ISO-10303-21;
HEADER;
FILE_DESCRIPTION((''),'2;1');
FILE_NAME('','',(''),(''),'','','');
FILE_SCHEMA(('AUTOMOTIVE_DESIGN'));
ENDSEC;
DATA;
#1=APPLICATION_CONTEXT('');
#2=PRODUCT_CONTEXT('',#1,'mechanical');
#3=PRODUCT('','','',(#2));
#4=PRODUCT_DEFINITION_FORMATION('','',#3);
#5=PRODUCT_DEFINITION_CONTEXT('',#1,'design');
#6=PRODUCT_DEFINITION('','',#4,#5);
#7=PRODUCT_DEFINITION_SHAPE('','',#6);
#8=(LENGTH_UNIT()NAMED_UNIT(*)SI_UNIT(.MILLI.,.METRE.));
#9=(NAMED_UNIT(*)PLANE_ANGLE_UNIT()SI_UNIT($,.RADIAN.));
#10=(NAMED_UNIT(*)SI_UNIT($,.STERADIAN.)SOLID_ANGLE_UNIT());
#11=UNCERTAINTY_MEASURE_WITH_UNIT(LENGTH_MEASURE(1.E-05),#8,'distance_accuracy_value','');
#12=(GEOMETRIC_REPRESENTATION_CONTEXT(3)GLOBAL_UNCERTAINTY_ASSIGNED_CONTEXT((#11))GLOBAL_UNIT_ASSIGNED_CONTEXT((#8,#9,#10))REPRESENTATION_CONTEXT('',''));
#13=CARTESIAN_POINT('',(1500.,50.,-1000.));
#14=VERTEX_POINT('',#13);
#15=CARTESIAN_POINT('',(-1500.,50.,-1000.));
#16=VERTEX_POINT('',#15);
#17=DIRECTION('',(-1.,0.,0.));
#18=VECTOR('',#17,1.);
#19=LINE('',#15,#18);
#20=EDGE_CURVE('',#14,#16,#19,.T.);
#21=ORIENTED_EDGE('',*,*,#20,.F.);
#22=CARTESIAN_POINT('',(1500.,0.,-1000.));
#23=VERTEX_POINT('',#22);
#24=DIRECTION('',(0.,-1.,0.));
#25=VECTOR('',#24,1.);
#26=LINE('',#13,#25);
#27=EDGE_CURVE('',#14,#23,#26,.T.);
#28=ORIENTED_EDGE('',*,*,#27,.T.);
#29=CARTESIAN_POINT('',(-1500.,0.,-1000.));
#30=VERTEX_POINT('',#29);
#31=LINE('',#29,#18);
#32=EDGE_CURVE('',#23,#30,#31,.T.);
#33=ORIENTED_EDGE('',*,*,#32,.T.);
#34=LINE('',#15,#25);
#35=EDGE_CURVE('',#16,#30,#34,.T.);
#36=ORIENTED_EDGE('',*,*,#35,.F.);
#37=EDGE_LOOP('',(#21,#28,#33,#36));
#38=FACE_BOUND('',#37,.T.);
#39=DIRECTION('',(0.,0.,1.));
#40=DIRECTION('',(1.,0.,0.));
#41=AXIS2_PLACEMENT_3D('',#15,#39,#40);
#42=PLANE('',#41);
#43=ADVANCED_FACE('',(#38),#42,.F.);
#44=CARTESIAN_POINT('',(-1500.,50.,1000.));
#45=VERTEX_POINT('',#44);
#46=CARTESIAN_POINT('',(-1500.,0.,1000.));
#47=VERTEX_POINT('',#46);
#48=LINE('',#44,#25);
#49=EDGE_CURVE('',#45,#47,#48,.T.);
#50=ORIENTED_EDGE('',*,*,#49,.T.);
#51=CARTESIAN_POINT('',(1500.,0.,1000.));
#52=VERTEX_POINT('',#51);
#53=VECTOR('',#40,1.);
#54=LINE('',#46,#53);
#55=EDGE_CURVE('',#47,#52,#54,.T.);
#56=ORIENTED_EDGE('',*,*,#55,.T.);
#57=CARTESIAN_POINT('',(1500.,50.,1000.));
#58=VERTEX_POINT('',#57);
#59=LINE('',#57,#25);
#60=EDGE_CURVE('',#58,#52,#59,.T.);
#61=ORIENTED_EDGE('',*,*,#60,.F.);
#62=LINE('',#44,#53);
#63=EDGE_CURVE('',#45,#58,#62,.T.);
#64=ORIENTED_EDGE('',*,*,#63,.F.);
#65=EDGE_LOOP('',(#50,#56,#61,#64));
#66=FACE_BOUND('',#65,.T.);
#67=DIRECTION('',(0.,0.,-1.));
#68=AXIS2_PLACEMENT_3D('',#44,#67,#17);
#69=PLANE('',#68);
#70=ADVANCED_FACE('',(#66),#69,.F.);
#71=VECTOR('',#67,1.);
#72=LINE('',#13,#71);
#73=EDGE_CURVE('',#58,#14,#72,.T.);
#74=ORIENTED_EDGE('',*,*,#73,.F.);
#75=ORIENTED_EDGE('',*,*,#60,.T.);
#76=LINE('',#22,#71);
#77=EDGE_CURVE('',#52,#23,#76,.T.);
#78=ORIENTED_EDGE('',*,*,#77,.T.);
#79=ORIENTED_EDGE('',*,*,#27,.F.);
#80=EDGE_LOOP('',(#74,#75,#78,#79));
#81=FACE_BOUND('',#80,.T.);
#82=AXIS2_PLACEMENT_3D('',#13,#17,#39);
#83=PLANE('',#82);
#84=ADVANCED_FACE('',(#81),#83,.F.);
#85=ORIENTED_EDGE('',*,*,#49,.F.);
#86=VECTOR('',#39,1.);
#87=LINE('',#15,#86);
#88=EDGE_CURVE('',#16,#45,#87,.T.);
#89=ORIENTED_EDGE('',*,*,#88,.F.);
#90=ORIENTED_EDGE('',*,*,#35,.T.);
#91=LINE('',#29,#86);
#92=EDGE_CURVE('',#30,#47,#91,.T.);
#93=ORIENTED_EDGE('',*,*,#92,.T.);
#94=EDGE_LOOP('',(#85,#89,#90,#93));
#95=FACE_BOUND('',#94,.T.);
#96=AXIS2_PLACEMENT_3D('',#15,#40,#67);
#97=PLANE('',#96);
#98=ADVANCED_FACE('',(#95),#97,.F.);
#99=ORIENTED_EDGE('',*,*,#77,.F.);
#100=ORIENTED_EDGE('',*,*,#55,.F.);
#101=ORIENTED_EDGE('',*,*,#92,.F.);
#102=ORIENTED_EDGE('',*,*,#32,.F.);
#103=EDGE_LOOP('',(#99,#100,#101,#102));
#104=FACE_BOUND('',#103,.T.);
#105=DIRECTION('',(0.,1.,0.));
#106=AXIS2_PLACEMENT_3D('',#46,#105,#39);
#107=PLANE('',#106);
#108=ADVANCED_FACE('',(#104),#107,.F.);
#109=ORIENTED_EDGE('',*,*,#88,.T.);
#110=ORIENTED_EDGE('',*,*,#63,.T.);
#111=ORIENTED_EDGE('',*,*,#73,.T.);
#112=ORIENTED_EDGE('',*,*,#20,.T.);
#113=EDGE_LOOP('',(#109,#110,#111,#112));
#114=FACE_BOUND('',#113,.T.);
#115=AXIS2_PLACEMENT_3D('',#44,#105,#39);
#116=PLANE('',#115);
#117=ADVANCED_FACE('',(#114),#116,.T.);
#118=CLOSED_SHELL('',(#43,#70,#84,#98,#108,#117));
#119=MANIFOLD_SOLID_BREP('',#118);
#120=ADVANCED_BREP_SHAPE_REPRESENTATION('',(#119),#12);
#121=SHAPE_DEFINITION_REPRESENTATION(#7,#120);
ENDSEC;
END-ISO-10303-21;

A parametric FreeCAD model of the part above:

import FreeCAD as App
import Part
import Sketcher
from FreeCAD import Vector

doc = App.newDocument("Part")
params = doc.addObject("Spreadsheet::Sheet", "Params")
for row, (alias, value) in enumerate([
    ("sketch1_width", "3000 mm"),
    ("sketch1_height", "2000 mm"),
    ("pad1_length", "50 mm"),
], start=1):
    params.set(f"A{row}", alias)
    params.set(f"B{row}", "=" + value)
    params.setAlias(f"B{row}", alias)

body = doc.addObject("PartDesign::Body", "Body")

sketch1 = doc.addObject("Sketcher::SketchObject", "Sketch")
body.addObject(sketch1)
sketch1.AttachmentSupport = (doc.XZ_Plane, [""])
sketch1.MapMode = "FlatFace"
sketch1.addGeometry(Part.LineSegment(Vector(-1500, -1000, 0), Vector(-1500, 1000, 0)), False)
sketch1.addGeometry(Part.LineSegment(Vector(-1500, 1000, 0), Vector(1500, 1000, 0)), False)
sketch1.addGeometry(Part.LineSegment(Vector(1500, 1000, 0), Vector(1500, -1000, 0)), False)
sketch1.addGeometry(Part.LineSegment(Vector(1500, -1000, 0), Vector(-1500, -1000, 0)), False)
sketch1.addConstraint(Sketcher.Constraint("Coincident", 0, 2, 1, 1))
sketch1.addConstraint(Sketcher.Constraint("Coincident", 1, 2, 2, 1))
sketch1.addConstraint(Sketcher.Constraint("Coincident", 2, 2, 3, 1))
sketch1.addConstraint(Sketcher.Constraint("Coincident", 3, 2, 0, 1))
sketch1.addConstraint(Sketcher.Constraint("Vertical", 0))
sketch1.addConstraint(Sketcher.Constraint("Horizontal", 1))
sketch1.addConstraint(Sketcher.Constraint("Vertical", 2))
sketch1.addConstraint(Sketcher.Constraint("Horizontal", 3))
sketch1.addConstraint(Sketcher.Constraint("Symmetric", 0, 2, 2, 2, -1, 1))
sketch1.addConstraint(Sketcher.Constraint("DistanceX", 1, 1, 1, 2, 3000.0))
sketch1.addConstraint(Sketcher.Constraint("DistanceY", 0, 1, 0, 2, 2000.0))
sketch1.setExpression("Constraints[9]", "Params.sketch1_width")
sketch1.setExpression("Constraints[10]", "Params.sketch1_height")
pad1 = doc.addObject("PartDesign::Pad", "Pad")
body.addObject(pad1)
pad1.Profile = sketch1
pad1.setExpression("Length", "Params.pad1_length")
pad1.Reversed = True

doc.recompute()
